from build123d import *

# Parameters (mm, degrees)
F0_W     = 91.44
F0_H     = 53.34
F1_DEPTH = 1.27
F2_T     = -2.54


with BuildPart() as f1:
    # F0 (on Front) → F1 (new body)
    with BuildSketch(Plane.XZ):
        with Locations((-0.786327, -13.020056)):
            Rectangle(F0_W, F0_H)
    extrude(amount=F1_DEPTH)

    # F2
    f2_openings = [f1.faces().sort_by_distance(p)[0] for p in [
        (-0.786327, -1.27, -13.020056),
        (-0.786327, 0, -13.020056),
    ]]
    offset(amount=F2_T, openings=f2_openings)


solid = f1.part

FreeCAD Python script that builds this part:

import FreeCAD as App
import Part
import Sketcher
Q = App.Units.Quantity


def faces_at(feature, points):
    """Names of the faces that lie closest to the given points."""
    faces = feature.Shape.Faces
    near = lambda p: min(range(len(faces)), key=lambda i: faces[i].distToShape(Part.Vertex(*p))[0])
    return sorted({f"Face{near(p) + 1}" for p in points})

doc = App.newDocument("Part")
body = doc.addObject("PartDesign::Body", "Body")

sketch1 = body.newObject("Sketcher::SketchObject", "Sketch")
sketch1.AttachmentSupport = (doc.getObject("XZ_Plane"), [""])
sketch1.MapMode = "FlatFace"
sketch1.addGeometry([
    Part.LineSegment(App.Vector(-47, 14, 0), App.Vector(-47, -40, 0)),
    Part.LineSegment(App.Vector(-47, -40, 0), App.Vector(45, -40, 0)),
    Part.LineSegment(App.Vector(45, -40, 0), App.Vector(45, 14, 0)),
    Part.LineSegment(App.Vector(45, 14, 0), App.Vector(-47, 14, 0)),
], False)
sketch1.addConstraint([
    Sketcher.Constraint("Coincident", 0, 2, 1, 1),
    Sketcher.Constraint("Coincident", 1, 2, 2, 1),
    Sketcher.Constraint("Coincident", 2, 2, 3, 1),
    Sketcher.Constraint("Coincident", 3, 2, 0, 1),
    Sketcher.Constraint("Vertical", 0),
    Sketcher.Constraint("Horizontal", 1),
    Sketcher.Constraint("Vertical", 2),
    Sketcher.Constraint("Horizontal", 3),
    Sketcher.Constraint("DistanceX", 1, 1, 1, 2, Q("3.6 in")),
    Sketcher.Constraint("DistanceY", 0, 2, 0, 1, Q("2.1 in")),
    Sketcher.Constraint("DistanceX", 0, 2, -1, 1, Q("46.506327 mm")),
    Sketcher.Constraint("DistanceY", 0, 2, -1, 1, Q("39.690056 mm")),
])
pad1 = body.newObject("PartDesign::Pad", "Pad")
pad1.Profile = sketch1
pad1.Length = Q("0.05 in")
doc.recompute()

thickness = body.newObject("PartDesign::Thickness", "Thickness")
thickness.Base = (pad1, faces_at(pad1, [(-0.786, -1.27, -13.02), (-0.786, 0, -13.02)]))
thickness.Value = Q("0.1 in")
thickness.Reversed = True
thickness.Join = "Arc"

doc.recompute()
